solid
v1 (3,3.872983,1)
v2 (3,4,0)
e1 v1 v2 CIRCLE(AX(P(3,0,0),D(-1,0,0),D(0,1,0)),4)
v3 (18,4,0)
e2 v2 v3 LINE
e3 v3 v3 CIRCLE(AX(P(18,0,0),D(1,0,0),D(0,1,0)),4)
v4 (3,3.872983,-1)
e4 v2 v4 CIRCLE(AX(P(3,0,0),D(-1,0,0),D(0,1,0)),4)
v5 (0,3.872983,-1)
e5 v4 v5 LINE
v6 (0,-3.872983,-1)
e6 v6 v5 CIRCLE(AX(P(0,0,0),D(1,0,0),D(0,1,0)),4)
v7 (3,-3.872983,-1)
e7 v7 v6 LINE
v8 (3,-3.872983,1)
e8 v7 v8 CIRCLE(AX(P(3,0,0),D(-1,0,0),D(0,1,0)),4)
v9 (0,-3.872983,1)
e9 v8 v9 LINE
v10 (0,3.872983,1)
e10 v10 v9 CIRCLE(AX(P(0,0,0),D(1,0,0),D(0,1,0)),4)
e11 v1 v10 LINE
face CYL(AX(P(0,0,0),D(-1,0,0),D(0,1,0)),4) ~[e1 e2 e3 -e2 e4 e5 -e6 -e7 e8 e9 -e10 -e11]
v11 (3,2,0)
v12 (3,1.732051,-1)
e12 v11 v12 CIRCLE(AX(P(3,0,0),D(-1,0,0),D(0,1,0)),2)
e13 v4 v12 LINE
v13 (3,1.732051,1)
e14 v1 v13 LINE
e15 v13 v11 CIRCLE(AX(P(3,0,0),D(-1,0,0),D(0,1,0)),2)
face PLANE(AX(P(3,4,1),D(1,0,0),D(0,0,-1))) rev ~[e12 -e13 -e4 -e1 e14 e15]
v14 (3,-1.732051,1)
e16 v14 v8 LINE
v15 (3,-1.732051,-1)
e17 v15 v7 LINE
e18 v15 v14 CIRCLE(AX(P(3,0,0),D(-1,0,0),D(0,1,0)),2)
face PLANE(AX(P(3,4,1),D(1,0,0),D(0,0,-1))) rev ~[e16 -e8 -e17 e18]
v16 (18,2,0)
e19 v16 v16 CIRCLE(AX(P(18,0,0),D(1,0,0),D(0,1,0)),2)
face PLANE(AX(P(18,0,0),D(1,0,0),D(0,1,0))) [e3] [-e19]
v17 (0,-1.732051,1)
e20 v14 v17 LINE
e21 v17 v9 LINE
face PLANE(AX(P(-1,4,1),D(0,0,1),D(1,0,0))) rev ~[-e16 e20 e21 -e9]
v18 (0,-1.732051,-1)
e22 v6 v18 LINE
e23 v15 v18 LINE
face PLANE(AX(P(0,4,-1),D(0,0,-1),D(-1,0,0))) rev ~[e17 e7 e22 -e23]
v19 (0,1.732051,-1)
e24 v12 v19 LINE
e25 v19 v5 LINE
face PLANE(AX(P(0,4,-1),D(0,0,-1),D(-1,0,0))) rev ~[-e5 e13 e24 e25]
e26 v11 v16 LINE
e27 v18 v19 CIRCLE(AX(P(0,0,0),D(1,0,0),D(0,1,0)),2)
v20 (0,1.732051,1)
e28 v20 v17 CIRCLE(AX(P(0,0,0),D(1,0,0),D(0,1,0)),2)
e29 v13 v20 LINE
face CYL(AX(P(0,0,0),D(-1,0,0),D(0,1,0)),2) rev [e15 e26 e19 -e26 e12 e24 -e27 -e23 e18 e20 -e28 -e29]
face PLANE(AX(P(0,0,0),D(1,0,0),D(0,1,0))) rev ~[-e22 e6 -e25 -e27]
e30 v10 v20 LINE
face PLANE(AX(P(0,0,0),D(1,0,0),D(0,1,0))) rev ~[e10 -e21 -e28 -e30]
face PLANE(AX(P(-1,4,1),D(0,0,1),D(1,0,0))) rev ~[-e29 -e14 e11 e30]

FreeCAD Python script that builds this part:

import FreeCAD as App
import Part
import Sketcher
from FreeCAD import Vector
Q = App.Units.Quantity

doc = App.newDocument("Part")
body = doc.addObject("PartDesign::Body", "Body")

# Sketch on YZ plane
sketch1 = body.newObject("Sketcher::SketchObject", "Sketch")
sketch1.AttachmentSupport = (doc.getObject("YZ_Plane"), [""])
sketch1.MapMode = "FlatFace"
sketch1.addGeometry([
    Part.Circle(Vector(0, 0, 0), Vector(0, 0, 1), 4),
    Part.Circle(Vector(0, 0, 0), Vector(0, 0, 1), 2),
], False)
sketch1.addConstraint([
    Sketcher.Constraint("Coincident", 0, 3, -1, 1),
    Sketcher.Constraint("Coincident", 1, 3, -1, 1),
    Sketcher.Constraint("Diameter", 0, Q("8 mm")),
    Sketcher.Constraint("Diameter", 1, Q("4 mm")),
])
pad1 = body.newObject("PartDesign::Pad", "Pad")
pad1.Profile = sketch1
pad1.Length = 18

# Sketch on XZ plane
sketch2 = body.newObject("Sketcher::SketchObject", "Sketch001")
sketch2.AttachmentSupport = (doc.getObject("XZ_Plane"), [""])
sketch2.MapMode = "FlatFace"
sketch2.AttachmentOffset = App.Placement(Vector(0, 0, -4), App.Rotation())
sketch2.addGeometry([
    Part.LineSegment(Vector(-1, 1, 0), Vector(3, 1, 0)),
    Part.LineSegment(Vector(3, 1, 0), Vector(3, -1, 0)),
    Part.LineSegment(Vector(3, -1, 0), Vector(-1, -1, 0)),
    Part.LineSegment(Vector(-1, -1, 0), Vector(-1, 1, 0)),
], False)
sketch2.addConstraint([
    Sketcher.Constraint("Coincident", 0, 2, 1, 1),
    Sketcher.Constraint("Coincident", 1, 2, 2, 1),
    Sketcher.Constraint("Coincident", 2, 2, 3, 1),
    Sketcher.Constraint("Coincident", 3, 2, 0, 1),
    Sketcher.Constraint("Horizontal", 0),
    Sketcher.Constraint("Vertical", 1),
    Sketcher.Constraint("Horizontal", 2),
    Sketcher.Constraint("Vertical", 3),
    Sketcher.Constraint("DistanceX", -1, 1, 0, 2, Q("3 mm")),
    Sketcher.Constraint("DistanceY", -1, 1, 0, 2, Q("1 mm")),
    Sketcher.Constraint("DistanceY", 1, 2, -1, 1, Q("1 mm")),
    Sketcher.Constraint("DistanceX", 2, 2, -1, 1, Q("1 mm")),
])
pocket1 = body.newObject("PartDesign::Pocket", "Pocket")
pocket1.Profile = sketch2
pocket1.Type = "ThroughAll"
pocket1.Reversed = True

doc.recompute()
